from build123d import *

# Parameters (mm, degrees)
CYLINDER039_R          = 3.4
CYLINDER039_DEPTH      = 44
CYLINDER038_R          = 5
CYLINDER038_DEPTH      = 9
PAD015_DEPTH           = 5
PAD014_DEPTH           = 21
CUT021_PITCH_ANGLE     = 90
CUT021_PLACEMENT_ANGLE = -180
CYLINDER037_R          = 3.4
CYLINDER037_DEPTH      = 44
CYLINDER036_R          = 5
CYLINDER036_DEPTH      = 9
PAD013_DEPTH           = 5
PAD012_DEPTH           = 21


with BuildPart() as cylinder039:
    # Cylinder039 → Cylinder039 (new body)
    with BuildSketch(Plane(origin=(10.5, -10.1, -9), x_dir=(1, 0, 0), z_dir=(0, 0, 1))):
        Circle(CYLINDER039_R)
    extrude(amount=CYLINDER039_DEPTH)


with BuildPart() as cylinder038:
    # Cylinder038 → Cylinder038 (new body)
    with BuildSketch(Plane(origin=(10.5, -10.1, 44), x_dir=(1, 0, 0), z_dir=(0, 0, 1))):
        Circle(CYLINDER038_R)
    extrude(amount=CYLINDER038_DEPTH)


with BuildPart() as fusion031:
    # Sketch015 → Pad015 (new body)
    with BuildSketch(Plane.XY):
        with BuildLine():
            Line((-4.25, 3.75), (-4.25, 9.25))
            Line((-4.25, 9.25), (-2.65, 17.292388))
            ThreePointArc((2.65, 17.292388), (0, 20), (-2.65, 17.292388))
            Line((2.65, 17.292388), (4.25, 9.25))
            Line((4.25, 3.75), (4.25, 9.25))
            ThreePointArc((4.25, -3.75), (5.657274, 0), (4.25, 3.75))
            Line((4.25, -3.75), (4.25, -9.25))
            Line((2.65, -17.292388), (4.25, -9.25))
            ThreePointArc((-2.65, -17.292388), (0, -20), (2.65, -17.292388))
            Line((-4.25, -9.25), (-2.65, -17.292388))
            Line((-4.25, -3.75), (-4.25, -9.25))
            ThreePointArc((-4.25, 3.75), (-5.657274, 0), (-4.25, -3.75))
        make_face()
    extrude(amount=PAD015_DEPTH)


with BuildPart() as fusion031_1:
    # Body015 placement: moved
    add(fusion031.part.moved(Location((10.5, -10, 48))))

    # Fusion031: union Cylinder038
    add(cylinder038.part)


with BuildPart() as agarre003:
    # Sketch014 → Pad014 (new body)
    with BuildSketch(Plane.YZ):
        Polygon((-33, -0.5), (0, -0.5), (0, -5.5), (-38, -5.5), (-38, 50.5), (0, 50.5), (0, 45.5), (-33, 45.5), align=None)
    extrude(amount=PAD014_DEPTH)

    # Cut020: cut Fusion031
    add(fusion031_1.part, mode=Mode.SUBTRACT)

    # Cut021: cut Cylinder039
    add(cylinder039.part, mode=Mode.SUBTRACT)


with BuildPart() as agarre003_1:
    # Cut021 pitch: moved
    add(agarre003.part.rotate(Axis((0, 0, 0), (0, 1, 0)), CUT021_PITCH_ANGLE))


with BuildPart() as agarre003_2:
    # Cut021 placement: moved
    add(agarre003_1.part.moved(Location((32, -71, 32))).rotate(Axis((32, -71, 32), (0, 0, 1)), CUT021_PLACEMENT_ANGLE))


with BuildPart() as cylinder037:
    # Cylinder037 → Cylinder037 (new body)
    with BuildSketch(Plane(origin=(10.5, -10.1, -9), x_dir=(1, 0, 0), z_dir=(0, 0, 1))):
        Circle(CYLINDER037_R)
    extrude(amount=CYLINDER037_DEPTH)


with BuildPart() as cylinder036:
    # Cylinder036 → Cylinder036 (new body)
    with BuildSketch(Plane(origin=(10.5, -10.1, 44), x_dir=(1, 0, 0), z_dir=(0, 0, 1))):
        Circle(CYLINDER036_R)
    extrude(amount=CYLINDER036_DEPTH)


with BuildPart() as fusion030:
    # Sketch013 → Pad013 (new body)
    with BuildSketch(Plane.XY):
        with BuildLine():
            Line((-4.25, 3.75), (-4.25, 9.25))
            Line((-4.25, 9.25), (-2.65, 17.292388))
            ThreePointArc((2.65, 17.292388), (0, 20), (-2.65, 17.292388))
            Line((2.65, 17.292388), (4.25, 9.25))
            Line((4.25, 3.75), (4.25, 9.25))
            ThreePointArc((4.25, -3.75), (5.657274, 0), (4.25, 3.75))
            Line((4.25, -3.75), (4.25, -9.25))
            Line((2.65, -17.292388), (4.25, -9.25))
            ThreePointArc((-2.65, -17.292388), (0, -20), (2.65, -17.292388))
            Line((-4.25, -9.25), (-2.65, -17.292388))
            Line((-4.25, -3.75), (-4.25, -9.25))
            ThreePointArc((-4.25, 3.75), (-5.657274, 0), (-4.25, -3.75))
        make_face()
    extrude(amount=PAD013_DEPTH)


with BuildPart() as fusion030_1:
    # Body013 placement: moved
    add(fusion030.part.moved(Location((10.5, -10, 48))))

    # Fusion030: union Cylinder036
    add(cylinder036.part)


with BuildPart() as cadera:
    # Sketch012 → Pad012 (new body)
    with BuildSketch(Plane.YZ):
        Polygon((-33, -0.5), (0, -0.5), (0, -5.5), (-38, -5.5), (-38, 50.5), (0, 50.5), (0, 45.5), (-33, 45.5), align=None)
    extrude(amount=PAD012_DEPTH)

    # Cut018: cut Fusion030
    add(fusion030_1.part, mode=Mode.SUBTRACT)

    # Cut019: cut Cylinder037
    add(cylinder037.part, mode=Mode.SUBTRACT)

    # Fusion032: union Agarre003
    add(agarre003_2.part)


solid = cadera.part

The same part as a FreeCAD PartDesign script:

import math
import FreeCAD as App
import Part
import Sketcher

V = App.Vector

doc = App.newDocument("Part")
body = doc.addObject("PartDesign::Body", "Body")

sketch1 = body.newObject("Sketcher::SketchObject", "Sketch")
sketch1.AttachmentSupport = (doc.getObject("XY_Plane"), [""])
sketch1.MapMode = "FlatFace"
sketch1.AttachmentOffset = App.Placement(V(0, 0, -9), App.Rotation())
sketch1.addGeometry(Part.Circle(V(10.5, -10.1, 0), V(0, 0, 1), 3.4), False)
sketch1.addConstraint([
    Sketcher.Constraint("Diameter", 0, 6.8),
    Sketcher.Constraint("DistanceX", -1, 1, 0, 3, 10.5),
    Sketcher.Constraint("DistanceY", 0, 3, -1, 1, 10.1),
])
pad1 = body.newObject("PartDesign::Pad", "Pad")
pad1.Profile = sketch1
pad1.Length = 44
body2 = doc.addObject("PartDesign::Body", "Body001")

sketch2 = body2.newObject("Sketcher::SketchObject", "Sketch001")
sketch2.AttachmentSupport = (doc.getObject("XY_Plane001"), [""])
sketch2.MapMode = "FlatFace"
sketch2.AttachmentOffset = App.Placement(V(0, 0, 44), App.Rotation())
sketch2.addGeometry(Part.Circle(V(10, -10, 0), V(0, 0, 1), 5), False)
sketch2.addConstraint([
    Sketcher.Constraint("Diameter", 0, 10.0),
    Sketcher.Constraint("DistanceX", -1, 1, 0, 3, 10.5),
    Sketcher.Constraint("DistanceY", 0, 3, -1, 1, 10.1),
])
pad2 = body2.newObject("PartDesign::Pad", "Pad001")
pad2.Profile = sketch2
pad2.Length = 9
body3 = doc.addObject("PartDesign::Body", "Body002")

sketch3 = body3.newObject("Sketcher::SketchObject", "Sketch002")
sketch3.AttachmentSupport = (doc.getObject("XY_Plane002"), [""])
sketch3.MapMode = "FlatFace"
sketch3.addGeometry([
    Part.LineSegment(V(-4.25, 9.25, 0), V(-4.25, 3.75, 0)),
    Part.ArcOfCircle(Part.Circle(V(0.042725, 0, 0), V(0, 0, 1), 5.699999), math.radians(138.860479), math.radians(221.139521)),
    Part.LineSegment(V(-4.25, -3.75, 0), V(-4.25, -9.25, 0)),
    Part.LineSegment(V(-4.25, -9.25, 0), V(-2.65, -17.292388, 0)),
    Part.ArcOfCircle(Part.Circle(V(0, -17.349387, 0), V(0, 0, 1), 2.650613), math.radians(178.76781), math.radians(361.23219)),
    Part.LineSegment(V(2.65, -17.292388, 0), V(4.25, -9.25, 0)),
    Part.LineSegment(V(4.25, -9.25, 0), V(4.25, -3.75, 0)),
    Part.ArcOfCircle(Part.Circle(V(-0.042725, 0, 0), V(0, 0, 1), 5.699999), math.radians(-41.139521), math.radians(41.139521)),
    Part.LineSegment(V(4.25, 3.75, 0), V(4.25, 9.25, 0)),
    Part.LineSegment(V(4.25, 9.25, 0), V(2.65, 17.292388, 0)),
    Part.ArcOfCircle(Part.Circle(V(0, 17.349387, 0), V(0, 0, 1), 2.650613), math.radians(-1.23219), math.radians(181.23219)),
    Part.LineSegment(V(-2.65, 17.292388, 0), V(-4.25, 9.25, 0)),
], False)
sketch3.addConstraint([
    Sketcher.Constraint("Coincident", 0, 2, 1, 1),
    Sketcher.Constraint("Coincident", 1, 2, 2, 1),
    Sketcher.Constraint("Coincident", 2, 2, 3, 1),
    Sketcher.Constraint("Coincident", 3, 2, 4, 1),
    Sketcher.Constraint("Coincident", 4, 2, 5, 1),
    Sketcher.Constraint("Coincident", 5, 2, 6, 1),
    Sketcher.Constraint("Coincident", 6, 2, 7, 1),
    Sketcher.Constraint("Coincident", 7, 2, 8, 1),
    Sketcher.Constraint("Coincident", 8, 2, 9, 1),
    Sketcher.Constraint("Coincident", 9, 2, 10, 1),
    Sketcher.Constraint("Coincident", 10, 2, 11, 1),
    Sketcher.Constraint("Coincident", 11, 2, 0, 1),
    Sketcher.Constraint("Vertical", 0),
    Sketcher.Constraint("Vertical", 2),
    Sketcher.Constraint("Vertical", 6),
    Sketcher.Constraint("Vertical", 8),
    Sketcher.Constraint("Equal", 1, 7),
    Sketcher.Constraint("Equal", 4, 10),
    Sketcher.Constraint("Symmetric", 1, 3, 7, 3, -1, 1),
    Sketcher.Constraint("Symmetric", 4, 3, 10, 3, -1, 1),
    Sketcher.Constraint("Symmetric", 2, 2, 8, 2, -1, 1),
    Sketcher.Constraint("Symmetric", 5, 2, 11, 2, -1, 1),
    Sketcher.Constraint("Symmetric", 3, 2, 4, 2, -2),
    Sketcher.Constraint("Symmetric", 2, 2, 5, 2, -2),
    Sketcher.Constraint("PointOnObject", 1, 3, -1),
    Sketcher.Constraint("Parallel", 3, 9),
    Sketcher.Constraint("Parallel", 5, 11),
    Sketcher.Constraint("Radius", 1, 5.699999),
    Sketcher.Constraint("DistanceY", 0, 2, 0, 1, 5.5),
    Sketcher.Constraint("DistanceY", 2, 2, 0, 2, 13.0),
    Sketcher.Constraint("Distance", 3, 8.2),
    Sketcher.Constraint("DistanceX", 2, 2, 3, 2, 1.6),
    Sketcher.Constraint("DistanceX", 3, 2, 4, 2, 5.3),
    Sketcher.Constraint("Radius", 4, 2.650613),
])
pad3 = body3.newObject("PartDesign::Pad", "Pad002")
pad3.Profile = sketch3
pad3.Length = 5
body4 = doc.addObject("PartDesign::Body", "Body003")
doc.recompute()

body3.Placement = App.Placement(V(10.5, -10, 48), App.Rotation(V(0, 0, 1), 0))
boolean = body4.newObject("PartDesign::Boolean", "Boolean")
boolean.Type = "Fuse"
boolean.addObjects([body3])
doc.recompute()

boolean2 = body4.newObject("PartDesign::Boolean", "Boolean001")
boolean2.Type = "Fuse"
boolean2.addObjects([body2])
body5 = doc.addObject("PartDesign::Body", "Body004")

sketch4 = body5.newObject("Sketcher::SketchObject", "Sketch003")
sketch4.AttachmentSupport = (doc.getObject("YZ_Plane004"), [""])
sketch4.MapMode = "FlatFace"
sketch4.addGeometry([
    Part.LineSegment(V(0, 0, 0), V(-33, 0, 0)),
    Part.LineSegment(V(-33, 0, 0), V(-33, 46, 0)),
    Part.LineSegment(V(-33, 46, 0), V(0, 46, 0)),
    Part.LineSegment(V(0, 46, 0), V(0, 50, 0)),
    Part.LineSegment(V(0, 50, 0), V(-38, 50, 0)),
    Part.LineSegment(V(-38, 50, 0), V(-38, -6, 0)),
    Part.LineSegment(V(-38, -6, 0), V(0, -6, 0)),
    Part.LineSegment(V(0, -6, 0), V(0, 0, 0)),
], False)
sketch4.addConstraint([
    Sketcher.Constraint("Coincident", 0, 2, 1, 1),
    Sketcher.Constraint("Coincident", 1, 2, 2, 1),
    Sketcher.Constraint("Coincident", 2, 2, 3, 1),
    Sketcher.Constraint("Coincident", 3, 2, 4, 1),
    Sketcher.Constraint("Coincident", 4, 2, 5, 1),
    Sketcher.Constraint("Coincident", 5, 2, 6, 1),
    Sketcher.Constraint("Coincident", 6, 2, 7, 1),
    Sketcher.Constraint("Coincident", 7, 2, 0, 1),
    Sketcher.Constraint("Horizontal", 0),
    Sketcher.Constraint("Vertical", 1),
    Sketcher.Constraint("Horizontal", 2),
    Sketcher.Constraint("Vertical", 3),
    Sketcher.Constraint("Horizontal", 4),
    Sketcher.Constraint("Vertical", 5),
    Sketcher.Constraint("Horizontal", 6),
    Sketcher.Constraint("Vertical", 7),
    Sketcher.Constraint("PointOnObject", 2, 2, -2),
    Sketcher.Constraint("PointOnObject", 6, 2, -2),
    Sketcher.Constraint("Equal", 3, 7),
    Sketcher.Constraint("DistanceX", 0, 2, 0, 1, 33.0),
    Sketcher.Constraint("DistanceX", 4, 2, 4, 1, 38.0),
    Sketcher.Constraint("DistanceY", 1, 1, 1, 2, 46.0),
    Sketcher.Constraint("DistanceY", 3, 1, 3, 2, 5.0),
    Sketcher.Constraint("DistanceY", 0, 2, -1, 1, 0.5),
])
pad4 = body5.newObject("PartDesign::Pad", "Pad003")
pad4.Profile = sketch4
pad4.Length = 21
doc.recompute()

boolean3 = body5.newObject("PartDesign::Boolean", "Boolean002")
boolean3.Type = "Cut"
boolean3.addObjects([body4])
doc.recompute()

boolean4 = body5.newObject("PartDesign::Boolean", "Boolean003")
boolean4.Type = "Cut"
boolean4.addObjects([body])
body6 = doc.addObject("PartDesign::Body", "Body005")
doc.recompute()

body5.Placement = App.Placement(V(0, 0, 0), App.Rotation(V(0, 1, 0), 90))
boolean5 = body6.newObject("PartDesign::Boolean", "Boolean004")
boolean5.Type = "Fuse"
boolean5.addObjects([body5])
body7 = doc.addObject("PartDesign::Body", "Body006")
doc.recompute()

body6.Placement = App.Placement(V(32, -71, 32), App.Rotation(V(0, 0, 1), 180))
boolean6 = body7.newObject("PartDesign::Boolean", "Boolean005")
boolean6.Type = "Fuse"
boolean6.addObjects([body6])
body8 = doc.addObject("PartDesign::Body", "Body007")

sketch5 = body8.newObject("Sketcher::SketchObject", "Sketch004")
sketch5.AttachmentSupport = (doc.getObject("XY_Plane007"), [""])
sketch5.MapMode = "FlatFace"
sketch5.AttachmentOffset = App.Placement(V(0, 0, -9), App.Rotation())
sketch5.addGeometry(Part.Circle(V(10.5, -10.1, 0), V(0, 0, 1), 3.4), False)
sketch5.addConstraint([
    Sketcher.Constraint("Diameter", 0, 6.8),
    Sketcher.Constraint("DistanceX", -1, 1, 0, 3, 10.5),
    Sketcher.Constraint("DistanceY", 0, 3, -1, 1, 10.1),
])
pad5 = body8.newObject("PartDesign::Pad", "Pad004")
pad5.Profile = sketch5
pad5.Length = 44
body9 = doc.addObject("PartDesign::Body", "Body008")

sketch6 = body9.newObject("Sketcher::SketchObject", "Sketch005")
sketch6.AttachmentSupport = (doc.getObject("XY_Plane008"), [""])
sketch6.MapMode = "FlatFace"
sketch6.AttachmentOffset = App.Placement(V(0, 0, 44), App.Rotation())
sketch6.addGeometry(Part.Circle(V(10, -10, 0), V(0, 0, 1), 5), False)
sketch6.addConstraint([
    Sketcher.Constraint("Diameter", 0, 10.0),
    Sketcher.Constraint("DistanceX", -1, 1, 0, 3, 10.5),
    Sketcher.Constraint("DistanceY", 0, 3, -1, 1, 10.1),
])
pad6 = body9.newObject("PartDesign::Pad", "Pad005")
pad6.Profile = sketch6
pad6.Length = 9
body10 = doc.addObject("PartDesign::Body", "Body009")

sketch7 = body10.newObject("Sketcher::SketchObject", "Sketch006")
sketch7.AttachmentSupport = (doc.getObject("XY_Plane009"), [""])
sketch7.MapMode = "FlatFace"
sketch7.addGeometry([
    Part.LineSegment(V(-4.25, 9.25, 0), V(-4.25, 3.75, 0)),
    Part.ArcOfCircle(Part.Circle(V(0.042725, 0, 0), V(0, 0, 1), 5.699999), math.radians(138.860479), math.radians(221.139521)),
    Part.LineSegment(V(-4.25, -3.75, 0), V(-4.25, -9.25, 0)),
    Part.LineSegment(V(-4.25, -9.25, 0), V(-2.65, -17.292388, 0)),
    Part.ArcOfCircle(Part.Circle(V(0, -17.349387, 0), V(0, 0, 1), 2.650613), math.radians(178.76781), math.radians(361.23219)),
    Part.LineSegment(V(2.65, -17.292388, 0), V(4.25, -9.25, 0)),
    Part.LineSegment(V(4.25, -9.25, 0), V(4.25, -3.75, 0)),
    Part.ArcOfCircle(Part.Circle(V(-0.042725, 0, 0), V(0, 0, 1), 5.699999), math.radians(-41.139521), math.radians(41.139521)),
    Part.LineSegment(V(4.25, 3.75, 0), V(4.25, 9.25, 0)),
    Part.LineSegment(V(4.25, 9.25, 0), V(2.65, 17.292388, 0)),
    Part.ArcOfCircle(Part.Circle(V(0, 17.349387, 0), V(0, 0, 1), 2.650613), math.radians(-1.23219), math.radians(181.23219)),
    Part.LineSegment(V(-2.65, 17.292388, 0), V(-4.25, 9.25, 0)),
], False)
sketch7.addConstraint([
    Sketcher.Constraint("Coincident", 0, 2, 1, 1),
    Sketcher.Constraint("Coincident", 1, 2, 2, 1),
    Sketcher.Constraint("Coincident", 2, 2, 3, 1),
    Sketcher.Constraint("Coincident", 3, 2, 4, 1),
    Sketcher.Constraint("Coincident", 4, 2, 5, 1),
    Sketcher.Constraint("Coincident", 5, 2, 6, 1),
    Sketcher.Constraint("Coincident", 6, 2, 7, 1),
    Sketcher.Constraint("Coincident", 7, 2, 8, 1),
    Sketcher.Constraint("Coincident", 8, 2, 9, 1),
    Sketcher.Constraint("Coincident", 9, 2, 10, 1),
    Sketcher.Constraint("Coincident", 10, 2, 11, 1),
    Sketcher.Constraint("Coincident", 11, 2, 0, 1),
    Sketcher.Constraint("Vertical", 0),
    Sketcher.Constraint("Vertical", 2),
    Sketcher.Constraint("Vertical", 6),
    Sketcher.Constraint("Vertical", 8),
    Sketcher.Constraint("Equal", 1, 7),
    Sketcher.Constraint("Equal", 4, 10),
    Sketcher.Constraint("Symmetric", 1, 3, 7, 3, -1, 1),
    Sketcher.Constraint("Symmetric", 4, 3, 10, 3, -1, 1),
    Sketcher.Constraint("Symmetric", 2, 2, 8, 2, -1, 1),
    Sketcher.Constraint("Symmetric", 5, 2, 11, 2, -1, 1),
    Sketcher.Constraint("Symmetric", 3, 2, 4, 2, -2),
    Sketcher.Constraint("Symmetric", 2, 2, 5, 2, -2),
    Sketcher.Constraint("PointOnObject", 1, 3, -1),
    Sketcher.Constraint("Parallel", 3, 9),
    Sketcher.Constraint("Parallel", 5, 11),
    Sketcher.Constraint("Radius", 1, 5.699999),
    Sketcher.Constraint("DistanceY", 0, 2, 0, 1, 5.5),
    Sketcher.Constraint("DistanceY", 2, 2, 0, 2, 13.0),
    Sketcher.Constraint("Distance", 3, 8.2),
    Sketcher.Constraint("DistanceX", 2, 2, 3, 2, 1.6),
    Sketcher.Constraint("DistanceX", 3, 2, 4, 2, 5.3),
    Sketcher.Constraint("Radius", 4, 2.650613),
])
pad7 = body10.newObject("PartDesign::Pad", "Pad006")
pad7.Profile = sketch7
pad7.Length = 5
body11 = doc.addObject("PartDesign::Body", "Body010")
doc.recompute()

body10.Placement = App.Placement(V(10.5, -10, 48), App.Rotation(V(0, 0, 1), 0))
boolean7 = body11.newObject("PartDesign::Boolean", "Boolean006")
boolean7.Type = "Fuse"
boolean7.addObjects([body10])
doc.recompute()

boolean8 = body11.newObject("PartDesign::Boolean", "Boolean007")
boolean8.Type = "Fuse"
boolean8.addObjects([body9])
body12 = doc.addObject("PartDesign::Body", "Body011")

sketch8 = body12.newObject("Sketcher::SketchObject", "Sketch007")
sketch8.AttachmentSupport = (doc.getObject("YZ_Plane011"), [""])
sketch8.MapMode = "FlatFace"
sketch8.addGeometry([
    Part.LineSegment(V(0, 0, 0), V(-33, 0, 0)),
    Part.LineSegment(V(-33, 0, 0), V(-33, 46, 0)),
    Part.LineSegment(V(-33, 46, 0), V(0, 46, 0)),
    Part.LineSegment(V(0, 46, 0), V(0, 50, 0)),
    Part.LineSegment(V(0, 50, 0), V(-38, 50, 0)),
    Part.LineSegment(V(-38, 50, 0), V(-38, -6, 0)),
    Part.LineSegment(V(-38, -6, 0), V(0, -6, 0)),
    Part.LineSegment(V(0, -6, 0), V(0, 0, 0)),
], False)
sketch8.addConstraint([
    Sketcher.Constraint("Coincident", 0, 2, 1, 1),
    Sketcher.Constraint("Coincident", 1, 2, 2, 1),
    Sketcher.Constraint("Coincident", 2, 2, 3, 1),
    Sketcher.Constraint("Coincident", 3, 2, 4, 1),
    Sketcher.Constraint("Coincident", 4, 2, 5, 1),
    Sketcher.Constraint("Coincident", 5, 2, 6, 1),
    Sketcher.Constraint("Coincident", 6, 2, 7, 1),
    Sketcher.Constraint("Coincident", 7, 2, 0, 1),
    Sketcher.Constraint("Horizontal", 0),
    Sketcher.Constraint("Vertical", 1),
    Sketcher.Constraint("Horizontal", 2),
    Sketcher.Constraint("Vertical", 3),
    Sketcher.Constraint("Horizontal", 4),
    Sketcher.Constraint("Vertical", 5),
    Sketcher.Constraint("Horizontal", 6),
    Sketcher.Constraint("Vertical", 7),
    Sketcher.Constraint("PointOnObject", 2, 2, -2),
    Sketcher.Constraint("PointOnObject", 6, 2, -2),
    Sketcher.Constraint("Equal", 3, 7),
    Sketcher.Constraint("DistanceX", 0, 2, 0, 1, 33.0),
    Sketcher.Constraint("DistanceX", 4, 2, 4, 1, 38.0),
    Sketcher.Constraint("DistanceY", 1, 1, 1, 2, 46.0),
    Sketcher.Constraint("DistanceY", 3, 1, 3, 2, 5.0),
    Sketcher.Constraint("DistanceY", 0, 2, -1, 1, 0.5),
])
pad8 = body12.newObject("PartDesign::Pad", "Pad007")
pad8.Profile = sketch8
pad8.Length = 21
doc.recompute()

boolean9 = body12.newObject("PartDesign::Boolean", "Boolean008")
boolean9.Type = "Cut"
boolean9.addObjects([body11])
doc.recompute()

boolean10 = body12.newObject("PartDesign::Boolean", "Boolean009")
boolean10.Type = "Cut"
boolean10.addObjects([body8])
doc.recompute()

boolean11 = body12.newObject("PartDesign::Boolean", "Boolean010")
boolean11.Type = "Fuse"
boolean11.addObjects([body7])

doc.recompute()
